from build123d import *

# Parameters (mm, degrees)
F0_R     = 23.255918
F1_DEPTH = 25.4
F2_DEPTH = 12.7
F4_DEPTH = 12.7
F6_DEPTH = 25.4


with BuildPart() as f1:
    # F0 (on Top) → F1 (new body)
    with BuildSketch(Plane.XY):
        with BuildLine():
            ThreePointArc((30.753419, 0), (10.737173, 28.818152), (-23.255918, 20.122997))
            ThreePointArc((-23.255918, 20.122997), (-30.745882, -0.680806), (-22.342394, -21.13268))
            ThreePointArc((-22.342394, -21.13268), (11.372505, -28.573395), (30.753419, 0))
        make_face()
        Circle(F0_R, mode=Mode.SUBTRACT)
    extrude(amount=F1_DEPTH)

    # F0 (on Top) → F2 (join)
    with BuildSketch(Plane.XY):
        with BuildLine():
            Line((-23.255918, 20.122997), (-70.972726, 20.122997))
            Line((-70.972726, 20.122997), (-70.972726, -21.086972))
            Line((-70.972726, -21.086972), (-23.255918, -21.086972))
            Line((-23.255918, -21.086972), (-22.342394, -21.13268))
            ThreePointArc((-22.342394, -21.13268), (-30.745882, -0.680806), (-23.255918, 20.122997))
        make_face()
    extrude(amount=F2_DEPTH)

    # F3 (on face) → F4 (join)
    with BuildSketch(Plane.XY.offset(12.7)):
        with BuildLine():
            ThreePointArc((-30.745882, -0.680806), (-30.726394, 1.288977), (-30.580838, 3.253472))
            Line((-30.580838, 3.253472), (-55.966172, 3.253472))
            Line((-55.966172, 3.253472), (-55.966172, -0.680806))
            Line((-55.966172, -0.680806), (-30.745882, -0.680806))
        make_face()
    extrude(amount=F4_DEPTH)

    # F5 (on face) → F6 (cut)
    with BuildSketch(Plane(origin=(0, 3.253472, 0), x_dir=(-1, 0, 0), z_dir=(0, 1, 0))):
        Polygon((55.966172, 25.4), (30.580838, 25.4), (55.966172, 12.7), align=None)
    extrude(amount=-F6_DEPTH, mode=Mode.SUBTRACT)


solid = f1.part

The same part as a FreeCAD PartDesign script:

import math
import FreeCAD as App
import Part
import Sketcher

V = App.Vector
Q = App.Units.Quantity


def add_polygon(sketch, points):
    """Adds a closed chain of lines whose ends are joined by coincident constraints."""
    first, n = sketch.GeometryCount, len(points)
    for a, b in zip(points, points[1:] + points[:1]):
        sketch.addGeometry(Part.LineSegment(App.Vector(*a, 0), App.Vector(*b, 0)), False)
    for i in range(n):
        sketch.addConstraint(Sketcher.Constraint("Coincident", first + i, 2, first + (i + 1) % n, 1))

doc = App.newDocument("Part")
params = doc.addObject("Spreadsheet::Sheet", "Params")
for row, (alias, value) in enumerate([
    ("pad1_length", "1 in"),
    ("pad2_length", "0.5 in"),
    ("pad3_length", "0.5 in"),
    ("sketch4_height", "0.5 in"),
    ("pocket1_length", "1 in"),
], start=1):
    params.set(f"A{row}", alias)
    params.set(f"B{row}", "=" + value)
    params.setAlias(f"B{row}", alias)

body = doc.addObject("PartDesign::Body", "Body")

# Sketch on XY plane
sketch1 = doc.addObject("Sketcher::SketchObject", "Sketch")
body.addObject(sketch1)
sketch1.AttachmentSupport = (doc.XY_Plane, [""])
sketch1.MapMode = "FlatFace"
sketch1.addGeometry(Part.ArcOfCircle(Part.Circle(V(0.000001, 0, 0), V(0, 0, 1), 30.753418), math.radians(0), math.radians(139.130856)), False)
sketch1.addGeometry(Part.ArcOfCircle(Part.Circle(V(-0.000002, 0, 0), V(0, 0, 1), 30.753417), math.radians(139.130853), math.radians(223.406132)), False)
sketch1.addGeometry(Part.ArcOfCircle(Part.Circle(V(0.000001, 0, 0), V(0, 0, 1), 30.753418), math.radians(-136.593871), math.radians(0)), False)
sketch1.addGeometry(Part.Circle(V(0, 0, 0), V(0, 0, 1), 23.255918), False)
sketch1.addConstraint(Sketcher.Constraint("Tangent", 0, 2, 1, 1))
sketch1.addConstraint(Sketcher.Constraint("Tangent", 1, 2, 2, 1))
sketch1.addConstraint(Sketcher.Constraint("Tangent", 2, 2, 0, 1))
sketch1.addConstraint(Sketcher.Constraint("Coincident", 0, 3, -1, 1))
sketch1.addConstraint(Sketcher.Constraint("Coincident", 3, 3, -1, 1))
sketch1.addConstraint(Sketcher.Constraint("PointOnObject", 2, 2, -1))
sketch1.addConstraint(Sketcher.Constraint("Radius", 0, 30.753418))
sketch1.addConstraint(Sketcher.Constraint("Diameter", 3, 46.511836))
sketch1.addConstraint(Sketcher.Constraint("DistanceX", 0, 2, -1, 1, 23.255918))
sketch1.addConstraint(Sketcher.Constraint("DistanceY", 1, 2, -1, 1, 21.13268))
pad1 = doc.addObject("PartDesign::Pad", "Pad")
body.addObject(pad1)
pad1.Profile = sketch1
pad1.setExpression("Length", "Params.pad1_length")

# Sketch on XY plane
sketch2 = doc.addObject("Sketcher::SketchObject", "Sketch001")
body.addObject(sketch2)
sketch2.AttachmentSupport = (doc.XY_Plane, [""])
sketch2.MapMode = "FlatFace"
sketch2.addGeometry(Part.LineSegment(V(-23.255918, 20.122997, 0), V(-70.972726, 20.122997, 0)), False)
sketch2.addGeometry(Part.LineSegment(V(-70.972726, 20.122997, 0), V(-70.972726, -21.086972, 0)), False)
sketch2.addGeometry(Part.LineSegment(V(-70.972726, -21.086972, 0), V(-23.255918, -21.086972, 0)), False)
sketch2.addGeometry(Part.LineSegment(V(-23.255918, -21.086972, 0), V(-22.342394, -21.13268, 0)), False)
sketch2.addGeometry(Part.ArcOfCircle(Part.Circle(V(-0.000002, 0, 0), V(0, 0, 1), 30.753417), math.radians(139.130853), math.radians(223.406132)), False)
sketch2.addConstraint(Sketcher.Constraint("Coincident", 0, 2, 1, 1))
sketch2.addConstraint(Sketcher.Constraint("Coincident", 1, 2, 2, 1))
sketch2.addConstraint(Sketcher.Constraint("Coincident", 2, 2, 3, 1))
sketch2.addConstraint(Sketcher.Constraint("Coincident", 3, 2, 4, 2))
sketch2.addConstraint(Sketcher.Constraint("Coincident", 4, 1, 0, 1))
sketch2.addConstraint(Sketcher.Constraint("Horizontal", 0))
sketch2.addConstraint(Sketcher.Constraint("Vertical", 1))
sketch2.addConstraint(Sketcher.Constraint("Horizontal", 2))
sketch2.addConstraint(Sketcher.Constraint("Coincident", 4, 3, -1, 1))
sketch2.addConstraint(Sketcher.Constraint("Vertical", 2, 2, 4, 1))
sketch2.addConstraint(Sketcher.Constraint("Radius", 4, 30.753417))
sketch2.addConstraint(Sketcher.Constraint("DistanceY", 1, 2, 1, 1, 41.209969))
sketch2.addConstraint(Sketcher.Constraint("DistanceX", 0, 2, 0, 1, 47.716808))
sketch2.addConstraint(Sketcher.Constraint("DistanceY", 1, 2, -1, 1, 21.086972))
sketch2.addConstraint(Sketcher.Constraint("DistanceY", 3, 2, -1, 1, 21.13268))
pad2 = doc.addObject("PartDesign::Pad", "Pad001")
body.addObject(pad2)
pad2.Profile = sketch2
pad2.setExpression("Length", "Params.pad2_length")

# Sketch on XY plane
sketch3 = doc.addObject("Sketcher::SketchObject", "Sketch002")
body.addObject(sketch3)
sketch3.AttachmentSupport = (doc.XY_Plane, [""])
sketch3.MapMode = "FlatFace"
sketch3.AttachmentOffset = App.Placement(V(0, 0, 0.5 * 25.4), App.Rotation())
sketch3.addGeometry(Part.ArcOfCircle(Part.Circle(V(-0.000041, -0.000001, 0), V(0, 0, 1), 30.753378), math.radians(173.927179), math.radians(181.268492)), False)
sketch3.addGeometry(Part.LineSegment(V(-30.580838, 3.253472, 0), V(-55.966172, 3.253472, 0)), False)
sketch3.addGeometry(Part.LineSegment(V(-55.966172, 3.253472, 0), V(-55.966172, -0.680806, 0)), False)
sketch3.addGeometry(Part.LineSegment(V(-55.966172, -0.680806, 0), V(-30.745882, -0.680806, 0)), False)
sketch3.addConstraint(Sketcher.Constraint("Coincident", 0, 1, 1, 1))
sketch3.addConstraint(Sketcher.Constraint("Coincident", 1, 2, 2, 1))
sketch3.addConstraint(Sketcher.Constraint("Coincident", 2, 2, 3, 1))
sketch3.addConstraint(Sketcher.Constraint("Coincident", 3, 2, 0, 2))
sketch3.addConstraint(Sketcher.Constraint("Horizontal", 1))
sketch3.addConstraint(Sketcher.Constraint("Vertical", 2))
sketch3.addConstraint(Sketcher.Constraint("Horizontal", 3))
sketch3.addConstraint(Sketcher.Constraint("PointOnObject", 0, 3, -1))
sketch3.addConstraint(Sketcher.Constraint("Radius", 0, 30.753378))
sketch3.addConstraint(Sketcher.Constraint("DistanceX", 3, 1, 3, 2, 25.22029))
sketch3.addConstraint(Sketcher.Constraint("DistanceX", 1, 2, 1, 1, 25.385334))
sketch3.addConstraint(Sketcher.Constraint("DistanceY", 2, 2, 2, 1, 3.934278))
sketch3.addConstraint(Sketcher.Constraint("DistanceX", 0, 1, -1, 1, 30.580838))
pad3 = doc.addObject("PartDesign::Pad", "Pad002")
body.addObject(pad3)
pad3.Profile = sketch3
pad3.setExpression("Length", "Params.pad3_length")

# Sketch on XZ plane
sketch4 = doc.addObject("Sketcher::SketchObject", "Sketch003")
body.addObject(sketch4)
sketch4.AttachmentSupport = (doc.XZ_Plane, [""])
sketch4.MapMode = "FlatFace"
sketch4.AttachmentOffset = App.Placement(V(0, 0, -3.253472), App.Rotation())
add_polygon(sketch4, [(-55.966172, 25.4), (-30.580838, 25.4), (-55.966172, 12.7)])  # lines 0-2
sketch4.addConstraint(Sketcher.Constraint("Horizontal", 0))
sketch4.addConstraint(Sketcher.Constraint("Vertical", 2))
sketch4.addConstraint(Sketcher.Constraint("DistanceY", 2, 1, 2, 2, Q("0.5 in")))
sketch4.addConstraint(Sketcher.Constraint("DistanceY", -1, 1, 0, 2, Q("1 in")))
sketch4.addConstraint(Sketcher.Constraint("DistanceX", 0, 1, 0, 2, 25.385334))
sketch4.addConstraint(Sketcher.Constraint("DistanceX", 0, 2, -1, 1, 30.580838))
sketch4.setExpression("Constraints[5]", "Params.sketch4_height")
pocket1 = doc.addObject("PartDesign::Pocket", "Pocket")
body.addObject(pocket1)
pocket1.Profile = sketch4
pocket1.setExpression("Length", "Params.pocket1_length")
pocket1.Reversed = True

doc.recompute()
